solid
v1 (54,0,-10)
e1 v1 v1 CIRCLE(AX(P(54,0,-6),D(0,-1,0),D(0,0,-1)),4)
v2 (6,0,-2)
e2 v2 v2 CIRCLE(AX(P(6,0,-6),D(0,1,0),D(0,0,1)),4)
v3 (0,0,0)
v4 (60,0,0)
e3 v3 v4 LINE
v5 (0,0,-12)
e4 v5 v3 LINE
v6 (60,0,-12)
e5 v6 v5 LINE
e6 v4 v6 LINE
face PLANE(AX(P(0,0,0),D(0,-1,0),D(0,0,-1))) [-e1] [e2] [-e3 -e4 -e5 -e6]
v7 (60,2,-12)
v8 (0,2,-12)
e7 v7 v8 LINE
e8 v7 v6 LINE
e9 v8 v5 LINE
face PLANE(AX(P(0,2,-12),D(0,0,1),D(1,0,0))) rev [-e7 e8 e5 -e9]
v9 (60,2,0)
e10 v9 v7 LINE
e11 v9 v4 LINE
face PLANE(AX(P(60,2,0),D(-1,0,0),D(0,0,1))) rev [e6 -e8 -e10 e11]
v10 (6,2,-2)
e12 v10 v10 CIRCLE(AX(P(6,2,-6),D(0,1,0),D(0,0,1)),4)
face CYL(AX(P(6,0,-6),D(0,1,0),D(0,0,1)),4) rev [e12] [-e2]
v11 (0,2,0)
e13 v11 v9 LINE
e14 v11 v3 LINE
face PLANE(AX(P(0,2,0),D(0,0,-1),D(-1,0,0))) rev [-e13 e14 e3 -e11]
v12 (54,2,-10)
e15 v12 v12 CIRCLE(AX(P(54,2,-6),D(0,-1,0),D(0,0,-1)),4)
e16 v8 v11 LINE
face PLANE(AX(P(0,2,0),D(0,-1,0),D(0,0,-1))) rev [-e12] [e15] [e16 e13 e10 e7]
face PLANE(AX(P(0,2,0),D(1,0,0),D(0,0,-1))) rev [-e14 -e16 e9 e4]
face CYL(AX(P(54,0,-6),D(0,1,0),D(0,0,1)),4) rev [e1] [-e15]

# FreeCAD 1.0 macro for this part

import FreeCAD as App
import Part
import Sketcher
from FreeCAD import Vector

doc = App.newDocument("Part")
params = doc.addObject("Spreadsheet::Sheet", "Params")
for row, (alias, value) in enumerate([
    ("sketch1_width", "60 mm"),
    ("sketch1_height", "12 mm"),
    ("pad1_length", "2 mm"),
    ("sketch2_diameter", "8 mm"),
], start=1):
    params.set(f"A{row}", alias)
    params.set(f"B{row}", "=" + value)
    params.setAlias(f"B{row}", alias)

body = doc.addObject("PartDesign::Body", "Body")

# Sketch on XZ plane
sketch1 = doc.addObject("Sketcher::SketchObject", "Sketch")
body.addObject(sketch1)
sketch1.AttachmentSupport = (doc.XZ_Plane, [""])
sketch1.MapMode = "FlatFace"
sketch1.addGeometry([
    Part.LineSegment(Vector(0, -12, 0), Vector(0, 0, 0)),
    Part.LineSegment(Vector(0, 0, 0), Vector(60, 0, 0)),
    Part.LineSegment(Vector(60, 0, 0), Vector(60, -12, 0)),
    Part.LineSegment(Vector(60, -12, 0), Vector(0, -12, 0)),
], False)
sketch1.addConstraint([
    Sketcher.Constraint("Coincident", 0, 2, 1, 1),
    Sketcher.Constraint("Coincident", 1, 2, 2, 1),
    Sketcher.Constraint("Coincident", 2, 2, 3, 1),
    Sketcher.Constraint("Coincident", 3, 2, 0, 1),
    Sketcher.Constraint("Vertical", 0),
    Sketcher.Constraint("Horizontal", 1),
    Sketcher.Constraint("Vertical", 2),
    Sketcher.Constraint("Horizontal", 3),
    Sketcher.Constraint("Coincident", 0, 2, -1, 1),
    Sketcher.Constraint("DistanceX", 1, 1, 1, 2, 60.0),
    Sketcher.Constraint("DistanceY", 0, 1, 0, 2, 12.0),
])
sketch1.setExpression("Constraints[9]", "Params.sketch1_width")
sketch1.setExpression("Constraints[10]", "Params.sketch1_height")
pad1 = doc.addObject("PartDesign::Pad", "Pad")
body.addObject(pad1)
pad1.Profile = sketch1
pad1.setExpression("Length", "Params.pad1_length")
pad1.Reversed = True

# Sketch on XZ plane
sketch2 = doc.addObject("Sketcher::SketchObject", "Sketch001")
body.addObject(sketch2)
sketch2.AttachmentSupport = (doc.XZ_Plane, [""])
sketch2.MapMode = "FlatFace"
sketch2.AttachmentOffset = App.Placement(Vector(0, 0, -2), App.Rotation())
sketch2.addGeometry([
    Part.Circle(Vector(6, -6, 0), Vector(0, 0, 1), 4),
    Part.Circle(Vector(54, -6, 0), Vector(0, 0, 1), 4),
], False)
sketch2.addConstraint([
    Sketcher.Constraint("Equal", 0, 1),
    Sketcher.Constraint("Horizontal", 0, 3, 1, 3),
    Sketcher.Constraint("Diameter", 0, 8.0),
    Sketcher.Constraint("DistanceX", -1, 1, 0, 3, 6.0),
    Sketcher.Constraint("DistanceY", 0, 3, -1, 1, 6.0),
    Sketcher.Constraint("DistanceX", -1, 1, 1, 3, 54.0),
])
sketch2.setExpression("Constraints[2]", "Params.sketch2_diameter")
pocket1 = doc.addObject("PartDesign::Pocket", "Pocket")
body.addObject(pocket1)
pocket1.Profile = sketch2
pocket1.Type = "ThroughAll"
pocket1.Reversed = True

doc.recompute()
